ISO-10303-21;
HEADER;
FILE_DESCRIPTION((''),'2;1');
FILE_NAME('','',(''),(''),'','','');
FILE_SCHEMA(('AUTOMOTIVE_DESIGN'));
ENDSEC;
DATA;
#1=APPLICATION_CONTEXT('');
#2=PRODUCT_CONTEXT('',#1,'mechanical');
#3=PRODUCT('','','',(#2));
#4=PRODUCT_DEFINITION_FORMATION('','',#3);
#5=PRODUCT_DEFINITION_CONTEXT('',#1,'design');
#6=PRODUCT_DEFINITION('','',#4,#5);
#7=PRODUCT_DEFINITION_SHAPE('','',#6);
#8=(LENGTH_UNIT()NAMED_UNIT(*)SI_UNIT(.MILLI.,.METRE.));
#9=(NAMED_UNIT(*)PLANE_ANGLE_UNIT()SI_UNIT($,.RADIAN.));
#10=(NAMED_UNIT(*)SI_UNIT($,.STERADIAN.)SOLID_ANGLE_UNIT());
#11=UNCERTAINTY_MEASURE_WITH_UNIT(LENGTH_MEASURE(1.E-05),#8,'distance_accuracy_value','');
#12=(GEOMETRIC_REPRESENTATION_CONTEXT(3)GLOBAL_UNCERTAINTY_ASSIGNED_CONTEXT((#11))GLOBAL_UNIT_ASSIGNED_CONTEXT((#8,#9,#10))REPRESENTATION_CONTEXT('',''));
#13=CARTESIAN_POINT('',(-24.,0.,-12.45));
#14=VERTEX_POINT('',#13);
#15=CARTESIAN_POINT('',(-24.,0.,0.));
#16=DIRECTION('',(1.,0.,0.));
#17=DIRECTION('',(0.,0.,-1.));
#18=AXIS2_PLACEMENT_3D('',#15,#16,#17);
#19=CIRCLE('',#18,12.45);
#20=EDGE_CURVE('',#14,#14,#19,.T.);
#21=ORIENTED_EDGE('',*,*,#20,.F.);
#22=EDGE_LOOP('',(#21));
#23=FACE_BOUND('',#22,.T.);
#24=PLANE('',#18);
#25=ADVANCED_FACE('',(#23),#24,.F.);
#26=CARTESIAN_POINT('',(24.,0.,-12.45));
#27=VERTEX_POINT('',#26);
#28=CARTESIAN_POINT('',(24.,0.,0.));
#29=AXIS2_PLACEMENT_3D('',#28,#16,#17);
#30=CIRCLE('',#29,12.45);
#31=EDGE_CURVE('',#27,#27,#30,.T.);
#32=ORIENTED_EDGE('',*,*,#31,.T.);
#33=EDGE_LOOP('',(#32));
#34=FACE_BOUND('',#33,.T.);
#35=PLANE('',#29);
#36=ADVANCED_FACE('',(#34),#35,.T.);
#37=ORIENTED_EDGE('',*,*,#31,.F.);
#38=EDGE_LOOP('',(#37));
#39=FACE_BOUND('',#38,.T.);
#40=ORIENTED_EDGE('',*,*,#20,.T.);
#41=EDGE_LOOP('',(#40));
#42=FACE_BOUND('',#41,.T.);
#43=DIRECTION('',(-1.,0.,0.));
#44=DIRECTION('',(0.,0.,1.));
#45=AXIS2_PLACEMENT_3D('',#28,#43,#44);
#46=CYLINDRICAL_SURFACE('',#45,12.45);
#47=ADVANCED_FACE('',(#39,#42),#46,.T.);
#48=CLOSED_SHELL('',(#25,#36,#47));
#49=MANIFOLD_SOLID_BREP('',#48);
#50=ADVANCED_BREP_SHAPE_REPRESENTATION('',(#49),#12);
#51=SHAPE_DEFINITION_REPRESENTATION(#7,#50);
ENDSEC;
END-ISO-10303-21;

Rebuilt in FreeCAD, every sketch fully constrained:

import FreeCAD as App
import Part
import Sketcher

doc = App.newDocument("Part")
body = doc.addObject("PartDesign::Body", "Body")

sketch1 = body.newObject("Sketcher::SketchObject", "Sketch")
sketch1.AttachmentSupport = (doc.getObject("YZ_Plane"), [""])
sketch1.MapMode = "FlatFace"
sketch1.addGeometry(Part.Circle(App.Vector(0, 0, 0), App.Vector(0, 0, 1), 12), False)
sketch1.addConstraint([
    Sketcher.Constraint("Coincident", 0, 3, -1, 1),
    Sketcher.Constraint("Diameter", 0, 24.9),
])
pad1 = body.newObject("PartDesign::Pad", "Pad")
pad1.Profile = sketch1
pad1.Length = 48
pad1.Midplane = True

doc.recompute()
